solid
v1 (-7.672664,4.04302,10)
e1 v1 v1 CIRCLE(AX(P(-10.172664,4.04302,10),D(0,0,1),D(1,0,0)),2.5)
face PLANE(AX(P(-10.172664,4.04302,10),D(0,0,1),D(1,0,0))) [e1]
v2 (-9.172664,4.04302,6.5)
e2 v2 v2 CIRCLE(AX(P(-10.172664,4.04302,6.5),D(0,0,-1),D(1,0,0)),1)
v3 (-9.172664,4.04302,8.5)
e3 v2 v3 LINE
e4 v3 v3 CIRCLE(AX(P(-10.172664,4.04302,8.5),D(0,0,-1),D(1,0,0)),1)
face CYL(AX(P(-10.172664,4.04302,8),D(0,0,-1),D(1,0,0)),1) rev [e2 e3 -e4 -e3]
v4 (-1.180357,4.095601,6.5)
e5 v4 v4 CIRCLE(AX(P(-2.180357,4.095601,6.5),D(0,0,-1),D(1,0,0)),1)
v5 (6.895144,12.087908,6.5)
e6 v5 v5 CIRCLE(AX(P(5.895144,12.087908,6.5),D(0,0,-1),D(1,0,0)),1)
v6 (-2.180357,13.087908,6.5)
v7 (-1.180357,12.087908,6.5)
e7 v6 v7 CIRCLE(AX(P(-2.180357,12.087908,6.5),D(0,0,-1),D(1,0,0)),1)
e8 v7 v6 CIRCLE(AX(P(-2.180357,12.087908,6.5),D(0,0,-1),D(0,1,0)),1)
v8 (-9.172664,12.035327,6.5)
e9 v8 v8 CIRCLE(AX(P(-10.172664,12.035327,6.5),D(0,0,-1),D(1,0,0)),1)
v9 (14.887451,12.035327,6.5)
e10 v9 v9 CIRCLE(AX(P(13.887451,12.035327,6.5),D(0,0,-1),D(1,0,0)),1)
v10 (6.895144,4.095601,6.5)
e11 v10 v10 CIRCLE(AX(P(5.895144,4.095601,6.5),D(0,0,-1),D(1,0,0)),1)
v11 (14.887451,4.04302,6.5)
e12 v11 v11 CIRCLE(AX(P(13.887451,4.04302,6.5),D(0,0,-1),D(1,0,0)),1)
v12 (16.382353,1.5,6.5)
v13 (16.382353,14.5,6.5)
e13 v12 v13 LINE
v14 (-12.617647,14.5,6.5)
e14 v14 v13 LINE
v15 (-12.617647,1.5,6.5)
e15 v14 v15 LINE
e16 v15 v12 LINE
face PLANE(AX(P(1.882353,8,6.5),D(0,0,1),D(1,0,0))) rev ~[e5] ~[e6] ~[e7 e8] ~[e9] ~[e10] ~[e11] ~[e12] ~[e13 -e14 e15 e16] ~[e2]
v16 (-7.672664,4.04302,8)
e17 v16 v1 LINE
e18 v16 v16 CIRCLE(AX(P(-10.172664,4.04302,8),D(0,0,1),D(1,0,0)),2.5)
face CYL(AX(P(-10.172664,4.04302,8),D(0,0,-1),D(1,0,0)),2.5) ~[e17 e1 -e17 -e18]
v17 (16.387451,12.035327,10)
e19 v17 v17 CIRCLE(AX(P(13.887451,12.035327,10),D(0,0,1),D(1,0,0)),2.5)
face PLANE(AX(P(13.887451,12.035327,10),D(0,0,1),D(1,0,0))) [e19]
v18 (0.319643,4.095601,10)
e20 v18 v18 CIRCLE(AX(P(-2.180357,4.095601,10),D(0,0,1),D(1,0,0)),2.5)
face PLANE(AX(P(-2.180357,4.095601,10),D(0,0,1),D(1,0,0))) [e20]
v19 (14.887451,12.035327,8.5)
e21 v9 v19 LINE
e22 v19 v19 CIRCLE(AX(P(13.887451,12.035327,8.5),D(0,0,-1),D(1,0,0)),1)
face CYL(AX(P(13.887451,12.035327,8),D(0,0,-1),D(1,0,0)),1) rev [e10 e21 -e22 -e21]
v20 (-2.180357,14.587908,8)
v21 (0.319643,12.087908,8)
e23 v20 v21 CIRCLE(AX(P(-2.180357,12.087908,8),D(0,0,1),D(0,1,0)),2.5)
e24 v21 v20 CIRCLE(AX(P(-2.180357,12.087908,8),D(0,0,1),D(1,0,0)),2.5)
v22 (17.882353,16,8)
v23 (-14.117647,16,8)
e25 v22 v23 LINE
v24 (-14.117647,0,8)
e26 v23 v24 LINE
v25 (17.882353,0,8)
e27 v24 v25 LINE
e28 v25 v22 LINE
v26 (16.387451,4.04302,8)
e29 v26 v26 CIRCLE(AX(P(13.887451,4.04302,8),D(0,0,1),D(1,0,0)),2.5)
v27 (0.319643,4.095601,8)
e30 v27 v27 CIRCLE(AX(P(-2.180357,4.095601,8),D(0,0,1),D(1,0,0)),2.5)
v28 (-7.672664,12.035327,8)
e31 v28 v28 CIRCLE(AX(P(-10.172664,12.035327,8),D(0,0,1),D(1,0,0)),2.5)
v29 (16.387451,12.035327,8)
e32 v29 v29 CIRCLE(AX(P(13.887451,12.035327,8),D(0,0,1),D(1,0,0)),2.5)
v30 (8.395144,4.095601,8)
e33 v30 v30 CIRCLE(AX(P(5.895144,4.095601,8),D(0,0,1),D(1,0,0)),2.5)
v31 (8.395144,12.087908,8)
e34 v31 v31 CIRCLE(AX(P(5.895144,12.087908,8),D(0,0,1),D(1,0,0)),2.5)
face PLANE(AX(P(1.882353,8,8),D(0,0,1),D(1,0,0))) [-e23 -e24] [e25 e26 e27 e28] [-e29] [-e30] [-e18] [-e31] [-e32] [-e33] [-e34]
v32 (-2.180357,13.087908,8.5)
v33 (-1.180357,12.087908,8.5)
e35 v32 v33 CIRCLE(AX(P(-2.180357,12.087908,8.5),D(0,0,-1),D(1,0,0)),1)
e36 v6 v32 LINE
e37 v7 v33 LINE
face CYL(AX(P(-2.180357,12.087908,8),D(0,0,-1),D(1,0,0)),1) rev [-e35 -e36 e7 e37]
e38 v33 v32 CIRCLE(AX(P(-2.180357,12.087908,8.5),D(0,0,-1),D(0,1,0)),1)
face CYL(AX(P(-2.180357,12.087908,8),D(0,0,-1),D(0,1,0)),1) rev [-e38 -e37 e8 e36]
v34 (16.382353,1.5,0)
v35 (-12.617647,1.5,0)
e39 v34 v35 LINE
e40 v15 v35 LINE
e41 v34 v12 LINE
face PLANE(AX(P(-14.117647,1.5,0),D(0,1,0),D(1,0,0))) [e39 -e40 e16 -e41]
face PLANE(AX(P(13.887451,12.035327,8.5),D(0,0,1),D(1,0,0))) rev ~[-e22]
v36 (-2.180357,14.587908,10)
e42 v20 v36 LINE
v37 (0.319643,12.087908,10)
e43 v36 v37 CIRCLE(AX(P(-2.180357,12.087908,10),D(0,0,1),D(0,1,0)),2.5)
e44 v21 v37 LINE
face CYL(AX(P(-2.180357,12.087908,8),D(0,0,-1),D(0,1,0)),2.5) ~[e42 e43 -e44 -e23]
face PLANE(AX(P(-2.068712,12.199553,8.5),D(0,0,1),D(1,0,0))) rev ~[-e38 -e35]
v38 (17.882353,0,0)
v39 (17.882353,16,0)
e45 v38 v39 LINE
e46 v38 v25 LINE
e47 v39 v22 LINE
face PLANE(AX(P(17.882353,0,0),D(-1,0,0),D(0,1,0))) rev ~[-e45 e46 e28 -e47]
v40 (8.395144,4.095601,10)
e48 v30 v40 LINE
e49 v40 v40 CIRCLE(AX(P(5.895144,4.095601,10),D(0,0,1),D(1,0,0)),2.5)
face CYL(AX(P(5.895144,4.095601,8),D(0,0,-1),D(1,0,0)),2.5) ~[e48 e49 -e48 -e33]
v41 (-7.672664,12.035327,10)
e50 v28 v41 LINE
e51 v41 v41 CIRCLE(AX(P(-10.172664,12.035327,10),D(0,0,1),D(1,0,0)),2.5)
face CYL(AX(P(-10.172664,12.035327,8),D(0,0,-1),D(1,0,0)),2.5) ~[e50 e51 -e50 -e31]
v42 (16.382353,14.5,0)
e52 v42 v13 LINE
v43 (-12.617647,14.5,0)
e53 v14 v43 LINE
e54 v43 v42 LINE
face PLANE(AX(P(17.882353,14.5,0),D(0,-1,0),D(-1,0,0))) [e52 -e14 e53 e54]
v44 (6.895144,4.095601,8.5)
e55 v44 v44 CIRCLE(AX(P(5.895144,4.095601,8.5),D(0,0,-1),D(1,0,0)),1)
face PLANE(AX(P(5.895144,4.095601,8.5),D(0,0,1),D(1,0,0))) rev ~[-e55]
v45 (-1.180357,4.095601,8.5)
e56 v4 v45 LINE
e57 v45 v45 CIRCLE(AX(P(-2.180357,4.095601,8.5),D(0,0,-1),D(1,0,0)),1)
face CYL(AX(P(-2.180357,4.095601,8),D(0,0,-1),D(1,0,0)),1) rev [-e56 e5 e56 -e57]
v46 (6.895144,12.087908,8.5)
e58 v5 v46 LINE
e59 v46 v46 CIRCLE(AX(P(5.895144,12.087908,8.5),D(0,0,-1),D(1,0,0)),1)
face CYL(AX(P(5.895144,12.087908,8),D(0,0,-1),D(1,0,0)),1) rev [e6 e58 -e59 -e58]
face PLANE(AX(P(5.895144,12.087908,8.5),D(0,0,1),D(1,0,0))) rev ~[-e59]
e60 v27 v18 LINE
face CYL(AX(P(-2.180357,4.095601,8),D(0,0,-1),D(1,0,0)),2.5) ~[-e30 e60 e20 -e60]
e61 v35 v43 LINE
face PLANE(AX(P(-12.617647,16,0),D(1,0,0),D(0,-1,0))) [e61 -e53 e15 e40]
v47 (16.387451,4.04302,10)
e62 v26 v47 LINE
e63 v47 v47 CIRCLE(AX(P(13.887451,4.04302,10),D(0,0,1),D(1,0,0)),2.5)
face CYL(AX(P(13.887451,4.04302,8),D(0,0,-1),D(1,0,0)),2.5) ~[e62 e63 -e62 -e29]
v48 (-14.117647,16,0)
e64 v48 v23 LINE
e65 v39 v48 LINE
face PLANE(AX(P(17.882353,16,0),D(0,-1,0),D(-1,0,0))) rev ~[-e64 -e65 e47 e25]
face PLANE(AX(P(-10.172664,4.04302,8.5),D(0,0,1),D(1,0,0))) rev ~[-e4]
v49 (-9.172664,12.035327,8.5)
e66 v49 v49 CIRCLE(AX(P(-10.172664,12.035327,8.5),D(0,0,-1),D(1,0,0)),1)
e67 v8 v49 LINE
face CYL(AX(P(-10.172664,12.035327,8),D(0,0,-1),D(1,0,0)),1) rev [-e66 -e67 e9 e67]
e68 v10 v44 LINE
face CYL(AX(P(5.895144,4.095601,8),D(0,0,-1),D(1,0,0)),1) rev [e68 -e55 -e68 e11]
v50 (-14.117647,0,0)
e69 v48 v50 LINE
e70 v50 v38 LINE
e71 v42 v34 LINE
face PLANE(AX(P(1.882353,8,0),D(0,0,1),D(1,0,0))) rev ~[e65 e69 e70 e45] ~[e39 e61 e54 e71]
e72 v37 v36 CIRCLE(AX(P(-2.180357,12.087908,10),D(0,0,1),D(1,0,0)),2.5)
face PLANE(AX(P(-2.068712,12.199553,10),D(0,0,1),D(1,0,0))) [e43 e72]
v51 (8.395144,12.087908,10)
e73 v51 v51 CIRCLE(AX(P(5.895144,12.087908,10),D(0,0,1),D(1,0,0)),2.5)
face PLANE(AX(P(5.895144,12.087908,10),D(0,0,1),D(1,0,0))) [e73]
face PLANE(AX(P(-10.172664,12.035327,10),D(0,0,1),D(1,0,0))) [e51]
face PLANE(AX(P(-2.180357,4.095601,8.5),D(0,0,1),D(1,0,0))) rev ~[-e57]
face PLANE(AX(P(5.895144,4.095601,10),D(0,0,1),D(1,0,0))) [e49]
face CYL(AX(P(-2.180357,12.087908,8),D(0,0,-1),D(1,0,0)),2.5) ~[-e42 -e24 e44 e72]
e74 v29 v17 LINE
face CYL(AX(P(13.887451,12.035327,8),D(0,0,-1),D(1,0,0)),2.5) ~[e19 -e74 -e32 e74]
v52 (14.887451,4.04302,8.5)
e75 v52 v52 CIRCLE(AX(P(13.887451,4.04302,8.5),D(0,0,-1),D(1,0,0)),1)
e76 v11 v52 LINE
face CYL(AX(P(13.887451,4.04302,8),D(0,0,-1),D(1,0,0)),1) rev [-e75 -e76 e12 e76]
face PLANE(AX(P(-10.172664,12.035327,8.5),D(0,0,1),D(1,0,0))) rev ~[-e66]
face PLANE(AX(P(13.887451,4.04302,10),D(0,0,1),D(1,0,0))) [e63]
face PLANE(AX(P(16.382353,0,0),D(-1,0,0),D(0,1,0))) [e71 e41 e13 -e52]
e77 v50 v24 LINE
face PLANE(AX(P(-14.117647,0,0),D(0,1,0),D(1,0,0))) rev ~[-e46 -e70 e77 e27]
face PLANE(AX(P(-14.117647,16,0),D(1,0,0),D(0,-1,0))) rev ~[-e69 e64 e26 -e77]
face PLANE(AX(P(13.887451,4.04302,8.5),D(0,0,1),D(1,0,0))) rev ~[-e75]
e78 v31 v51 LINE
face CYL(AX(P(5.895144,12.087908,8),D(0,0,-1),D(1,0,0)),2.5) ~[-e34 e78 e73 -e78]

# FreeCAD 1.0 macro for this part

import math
import FreeCAD as App
import Part
import Sketcher
Q = App.Units.Quantity


def faces_at(feature, points):
    """Names of the faces that lie closest to the given points."""
    faces = feature.Shape.Faces
    near = lambda p: min(range(len(faces)), key=lambda i: faces[i].distToShape(Part.Vertex(*p))[0])
    return sorted({f"Face{near(p) + 1}" for p in points})

doc = App.newDocument("Part")
body = doc.addObject("PartDesign::Body", "Body")

sketch1 = body.newObject("Sketcher::SketchObject", "Sketch")
sketch1.AttachmentSupport = (doc.getObject("XY_Plane"), [""])
sketch1.MapMode = "FlatFace"
sketch1.addGeometry([
    Part.LineSegment(App.Vector(-14, 0, 0), App.Vector(18, 0, 0)),
    Part.LineSegment(App.Vector(18, 0, 0), App.Vector(18, 16, 0)),
    Part.LineSegment(App.Vector(18, 16, 0), App.Vector(-14, 16, 0)),
    Part.LineSegment(App.Vector(-14, 16, 0), App.Vector(-14, 0, 0)),
], False)
sketch1.addConstraint([
    Sketcher.Constraint("Coincident", 0, 2, 1, 1),
    Sketcher.Constraint("Coincident", 1, 2, 2, 1),
    Sketcher.Constraint("Coincident", 2, 2, 3, 1),
    Sketcher.Constraint("Coincident", 3, 2, 0, 1),
    Sketcher.Constraint("Horizontal", 0),
    Sketcher.Constraint("Vertical", 1),
    Sketcher.Constraint("Horizontal", 2),
    Sketcher.Constraint("Vertical", 3),
    Sketcher.Constraint("PointOnObject", 0, 2, -1),
    Sketcher.Constraint("DistanceX", 0, 1, 0, 2, Q("32 mm")),
    Sketcher.Constraint("DistanceY", 1, 1, 1, 2, Q("16 mm")),
    Sketcher.Constraint("DistanceX", -1, 1, 0, 2, Q("17.882353 mm")),
])
pad1 = body.newObject("PartDesign::Pad", "Pad")
pad1.Profile = sketch1
pad1.Length = 8

sketch2 = body.newObject("Sketcher::SketchObject", "Sketch001")
sketch2.AttachmentSupport = (doc.getObject("XY_Plane"), [""])
sketch2.MapMode = "FlatFace"
sketch2.AttachmentOffset = App.Placement(App.Vector(0, 0, 8), App.Rotation())
sketch2.addGeometry([
    Part.Circle(App.Vector(-10.2, 12, 0), App.Vector(0, 0, 1), 2.5),
    Part.Circle(App.Vector(-10.2, 4, 0), App.Vector(0, 0, 1), 2.5),
    Part.Circle(App.Vector(-2.2, 4.1, 0), App.Vector(0, 0, 1), 2.5),
    Part.ArcOfCircle(Part.Circle(App.Vector(-2.2, 12.1, 0), App.Vector(0, 0, 1), 2.5), math.radians(90), math.radians(360)),
    Part.ArcOfCircle(Part.Circle(App.Vector(-2.2, 12.1, 0), App.Vector(0, 0, 1), 2.5), math.radians(0), math.radians(90)),
    Part.Circle(App.Vector(5.9, 12.1, 0), App.Vector(0, 0, 1), 2.5),
    Part.Circle(App.Vector(5.9, 4.1, 0), App.Vector(0, 0, 1), 2.5),
    Part.Circle(App.Vector(13.9, 4, 0), App.Vector(0, 0, 1), 2.5),
    Part.Circle(App.Vector(13.9, 12, 0), App.Vector(0, 0, 1), 2.5),
], False)
sketch2.addConstraint([
    Sketcher.Constraint("Tangent", 3, 1, 4, 2),
    Sketcher.Constraint("Coincident", 4, 1, 3, 2),
    Sketcher.Constraint("Equal", 0, 1),
    Sketcher.Constraint("Equal", 1, 2),
    Sketcher.Constraint("Equal", 2, 3),
    Sketcher.Constraint("Equal", 4, 5),
    Sketcher.Constraint("Equal", 5, 6),
    Sketcher.Constraint("Equal", 6, 7),
    Sketcher.Constraint("Equal", 7, 8),
    Sketcher.Constraint("Horizontal", 4, 3, 5, 3),
    Sketcher.Constraint("Horizontal", 2, 3, 6, 3),
    Sketcher.Constraint("Horizontal", 1, 3, 7, 3),
    Sketcher.Constraint("Horizontal", 0, 3, 8, 3),
    Sketcher.Constraint("Horizontal", 5, 3, 4, 1),
    Sketcher.Constraint("Vertical", 0, 3, 1, 3),
    Sketcher.Constraint("Vertical", 2, 3, 3, 3),
    Sketcher.Constraint("Vertical", 5, 3, 6, 3),
    Sketcher.Constraint("Vertical", 7, 3, 8, 3),
    Sketcher.Constraint("Vertical", 4, 3, 3, 1),
    Sketcher.Constraint("Diameter", 0, Q("5 mm")),
    Sketcher.Constraint("DistanceY", -1, 1, 2, 3, Q("4.095601 mm")),
    Sketcher.Constraint("DistanceX", 3, 3, 5, 3, Q("8.075501 mm")),
    Sketcher.Constraint("DistanceY", -1, 1, 1, 3, Q("4.04302 mm")),
    Sketcher.Constraint("DistanceX", -1, 1, 7, 3, Q("13.887451 mm")),
    Sketcher.Constraint("DistanceY", 0, 3, 3, 3, Q("0.052581 mm")),
    Sketcher.Constraint("DistanceX", 0, 3, 5, 3, Q("16.067808 mm")),
    Sketcher.Constraint("DistanceX", 2, 3, 7, 3, Q("16.067808 mm")),
    Sketcher.Constraint("DistanceY", -1, 1, 0, 3, Q("12.035327 mm")),
])
pad2 = body.newObject("PartDesign::Pad", "Pad001")
pad2.Profile = sketch2
pad2.Length = 2
doc.recompute()

thickness = body.newObject("PartDesign::Thickness", "Thickness")
thickness.Base = (pad2, faces_at(pad2, [(1.882, 8, 0)]))
thickness.Value = 1.5
thickness.Reversed = True
thickness.Join = "Intersection"

doc.recompute()
